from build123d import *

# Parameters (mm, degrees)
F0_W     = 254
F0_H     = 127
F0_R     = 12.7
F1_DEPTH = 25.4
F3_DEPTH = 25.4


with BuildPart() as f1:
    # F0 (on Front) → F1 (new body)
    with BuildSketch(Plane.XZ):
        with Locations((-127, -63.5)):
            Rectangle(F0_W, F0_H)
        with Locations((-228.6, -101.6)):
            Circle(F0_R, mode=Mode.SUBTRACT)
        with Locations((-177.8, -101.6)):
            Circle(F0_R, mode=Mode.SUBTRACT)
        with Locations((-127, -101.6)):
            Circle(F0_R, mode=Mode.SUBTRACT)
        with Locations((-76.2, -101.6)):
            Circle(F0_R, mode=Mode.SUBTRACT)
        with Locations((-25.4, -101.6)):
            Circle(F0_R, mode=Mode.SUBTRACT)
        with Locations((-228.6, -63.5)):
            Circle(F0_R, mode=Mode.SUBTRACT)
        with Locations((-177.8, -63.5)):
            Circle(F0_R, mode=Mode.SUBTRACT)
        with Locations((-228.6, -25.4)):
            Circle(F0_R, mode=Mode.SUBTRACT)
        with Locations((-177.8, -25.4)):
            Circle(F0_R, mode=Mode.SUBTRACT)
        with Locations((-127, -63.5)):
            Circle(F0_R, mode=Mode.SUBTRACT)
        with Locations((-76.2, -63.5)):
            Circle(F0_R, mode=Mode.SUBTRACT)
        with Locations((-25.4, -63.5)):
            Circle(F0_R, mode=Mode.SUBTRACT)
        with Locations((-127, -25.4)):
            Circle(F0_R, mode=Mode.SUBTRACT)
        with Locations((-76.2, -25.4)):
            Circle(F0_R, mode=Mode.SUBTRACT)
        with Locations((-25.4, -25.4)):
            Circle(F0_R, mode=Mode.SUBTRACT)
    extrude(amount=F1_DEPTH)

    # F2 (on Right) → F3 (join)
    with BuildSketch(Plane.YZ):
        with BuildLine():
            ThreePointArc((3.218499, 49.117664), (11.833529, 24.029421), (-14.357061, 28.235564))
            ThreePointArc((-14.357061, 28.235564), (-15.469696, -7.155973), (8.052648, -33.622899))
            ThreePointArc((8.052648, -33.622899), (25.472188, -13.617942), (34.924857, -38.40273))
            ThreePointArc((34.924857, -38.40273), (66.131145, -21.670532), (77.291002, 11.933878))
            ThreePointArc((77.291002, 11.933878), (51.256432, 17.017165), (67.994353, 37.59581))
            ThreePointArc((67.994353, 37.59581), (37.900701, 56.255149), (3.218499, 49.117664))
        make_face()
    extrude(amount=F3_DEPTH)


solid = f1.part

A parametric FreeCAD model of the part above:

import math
import FreeCAD as App
import Part
import Sketcher
from FreeCAD import Vector
Q = App.Units.Quantity

doc = App.newDocument("Part")
params = doc.addObject("Spreadsheet::Sheet", "Params")
for row, (alias, value) in enumerate([
    ("sketch1_diameter", "1 in"),
    ("sketch1_width", "10 in"),
    ("sketch1_height", "5 in"),
    ("pad1_length", "1 in"),
    ("pad2_length", "1 in"),
], start=1):
    params.set(f"A{row}", alias)
    params.set(f"B{row}", "=" + value)
    params.setAlias(f"B{row}", alias)

body = doc.addObject("PartDesign::Body", "Body")

sketch1 = body.newObject("Sketcher::SketchObject", "Sketch")
sketch1.AttachmentSupport = (doc.getObject("XZ_Plane"), [""])
sketch1.MapMode = "FlatFace"
sketch1.addGeometry([
    Part.LineSegment(Vector(-254, 0, 0), Vector(-254, -127, 0)),
    Part.LineSegment(Vector(-254, -127, 0), Vector(0, -127, 0)),
    Part.LineSegment(Vector(0, -127, 0), Vector(0, 0, 0)),
    Part.LineSegment(Vector(0, 0, 0), Vector(-254, 0, 0)),
    Part.Circle(Vector(-228.6, -101.6, 0), Vector(0, 0, 1), 12.7),
    Part.Circle(Vector(-177.8, -101.6, 0), Vector(0, 0, 1), 12.7),
    Part.Circle(Vector(-228.6, -63.5, 0), Vector(0, 0, 1), 12.7),
    Part.Circle(Vector(-177.8, -63.5, 0), Vector(0, 0, 1), 12.7),
    Part.Circle(Vector(-127, -101.6, 0), Vector(0, 0, 1), 12.7),
    Part.Circle(Vector(-76.2, -101.6, 0), Vector(0, 0, 1), 12.7),
    Part.Circle(Vector(-25.4, -101.6, 0), Vector(0, 0, 1), 12.7),
    Part.Circle(Vector(-127, -63.5, 0), Vector(0, 0, 1), 12.7),
    Part.Circle(Vector(-76.2, -63.5, 0), Vector(0, 0, 1), 12.7),
    Part.Circle(Vector(-25.4, -63.5, 0), Vector(0, 0, 1), 12.7),
    Part.Circle(Vector(-228.6, -25.4, 0), Vector(0, 0, 1), 12.7),
    Part.Circle(Vector(-177.8, -25.4, 0), Vector(0, 0, 1), 12.7),
    Part.Circle(Vector(-127, -25.4, 0), Vector(0, 0, 1), 12.7),
    Part.Circle(Vector(-76.2, -25.4, 0), Vector(0, 0, 1), 12.7),
    Part.Circle(Vector(-25.4, -25.4, 0), Vector(0, 0, 1), 12.7),
], False)
sketch1.addConstraint([
    Sketcher.Constraint("Coincident", 0, 2, 1, 1),
    Sketcher.Constraint("Coincident", 1, 2, 2, 1),
    Sketcher.Constraint("Coincident", 2, 2, 3, 1),
    Sketcher.Constraint("Coincident", 3, 2, 0, 1),
    Sketcher.Constraint("Vertical", 0),
    Sketcher.Constraint("Horizontal", 1),
    Sketcher.Constraint("Vertical", 2),
    Sketcher.Constraint("Horizontal", 3),
    Sketcher.Constraint("Coincident", 2, 2, -1, 1),
    Sketcher.Constraint("Equal", 4, 5),
    Sketcher.Constraint("Equal", 5, 6),
    Sketcher.Constraint("Equal", 6, 7),
    Sketcher.Constraint("Equal", 7, 8),
    Sketcher.Constraint("Equal", 8, 9),
    Sketcher.Constraint("Equal", 9, 10),
    Sketcher.Constraint("Equal", 10, 11),
    Sketcher.Constraint("Equal", 11, 12),
    Sketcher.Constraint("Equal", 12, 13),
    Sketcher.Constraint("Equal", 13, 14),
    Sketcher.Constraint("Equal", 14, 15),
    Sketcher.Constraint("Equal", 15, 16),
    Sketcher.Constraint("Equal", 16, 17),
    Sketcher.Constraint("Equal", 17, 18),
    Sketcher.Constraint("Horizontal", 4, 3, 5, 3),
    Sketcher.Constraint("Horizontal", 6, 3, 7, 3),
    Sketcher.Constraint("Horizontal", 5, 3, 8, 3),
    Sketcher.Constraint("Horizontal", 8, 3, 9, 3),
    Sketcher.Constraint("Horizontal", 9, 3, 10, 3),
    Sketcher.Constraint("Horizontal", 7, 3, 11, 3),
    Sketcher.Constraint("Horizontal", 11, 3, 12, 3),
    Sketcher.Constraint("Horizontal", 12, 3, 13, 3),
    Sketcher.Constraint("Horizontal", 14, 3, 15, 3),
    Sketcher.Constraint("Horizontal", 15, 3, 16, 3),
    Sketcher.Constraint("Horizontal", 16, 3, 17, 3),
    Sketcher.Constraint("Horizontal", 17, 3, 18, 3),
    Sketcher.Constraint("Vertical", 4, 3, 6, 3),
    Sketcher.Constraint("Vertical", 5, 3, 7, 3),
    Sketcher.Constraint("Vertical", 8, 3, 11, 3),
    Sketcher.Constraint("Vertical", 9, 3, 12, 3),
    Sketcher.Constraint("Vertical", 10, 3, 13, 3),
    Sketcher.Constraint("Vertical", 6, 3, 14, 3),
    Sketcher.Constraint("Vertical", 7, 3, 15, 3),
    Sketcher.Constraint("Vertical", 11, 3, 16, 3),
    Sketcher.Constraint("Vertical", 12, 3, 17, 3),
    Sketcher.Constraint("Vertical", 13, 3, 18, 3),
    Sketcher.Constraint("Diameter", 4, Q("1 in")),
    Sketcher.Constraint("DistanceX", 1, 1, 1, 2, Q("10 in")),
    Sketcher.Constraint("DistanceY", 0, 2, 0, 1, Q("5 in")),
    Sketcher.Constraint("DistanceX", 4, 3, -1, 1, Q("9 in")),
    Sketcher.Constraint("DistanceY", 4, 3, -1, 1, Q("4 in")),
    Sketcher.Constraint("DistanceX", 5, 3, -1, 1, Q("7 in")),
    Sketcher.Constraint("DistanceX", 8, 3, -1, 1, Q("5 in")),
    Sketcher.Constraint("DistanceX", 9, 3, -1, 1, Q("3 in")),
    Sketcher.Constraint("DistanceX", 10, 3, -1, 1, Q("1 in")),
    Sketcher.Constraint("DistanceY", 14, 3, -1, 1, Q("1 in")),
    Sketcher.Constraint("DistanceY", 6, 3, -1, 1, Q("2.5 in")),
])
sketch1.setExpression("Constraints[45]", "Params.sketch1_diameter")
sketch1.setExpression("Constraints[46]", "Params.sketch1_width")
sketch1.setExpression("Constraints[47]", "Params.sketch1_height")
pad1 = body.newObject("PartDesign::Pad", "Pad")
pad1.Profile = sketch1
pad1.setExpression("Length", "Params.pad1_length")

sketch2 = body.newObject("Sketcher::SketchObject", "Sketch001")
sketch2.AttachmentSupport = (doc.getObject("YZ_Plane"), [""])
sketch2.MapMode = "FlatFace"
sketch2.addGeometry([
    Part.ArcOfCircle(Part.Circle(Vector(0, 33.989191, 0), Vector(0, 0, 1), 15.467043), math.radians(-158.161435), math.radians(77.9897)),
    Part.ArcOfCircle(Part.Circle(Vector(29.520718, 9.142882, 0), Vector(0, 0, 1), 47.85175), math.radians(156.484538), math.radians(243.343725)),
    Part.ArcOfCircle(Part.Circle(Vector(22.763539, -28.845964, 0), Vector(0, 0, 1), 15.467043), math.radians(-38.161436), math.radians(197.989701)),
    Part.ArcOfCircle(Part.Circle(Vector(29.520718, 9.14288, 0), Vector(0, 0, 1), 47.851747), math.radians(-83.515464), math.radians(3.343728)),
    Part.ArcOfCircle(Part.Circle(Vector(65.79861, 22.285417, 0), Vector(0, 0, 1), 15.467043), math.radians(81.838566), math.radians(317.989696)),
    Part.ArcOfCircle(Part.Circle(Vector(29.520716, 9.142883, 0), Vector(0, 0, 1), 47.851748), math.radians(36.484536), math.radians(123.343727)),
], False)
sketch2.addConstraint([
    Sketcher.Constraint("Coincident", 0, 1, 1, 1),
    Sketcher.Constraint("Coincident", 1, 2, 2, 2),
    Sketcher.Constraint("Coincident", 2, 1, 3, 1),
    Sketcher.Constraint("Coincident", 3, 2, 4, 2),
    Sketcher.Constraint("Coincident", 4, 1, 5, 1),
    Sketcher.Constraint("Coincident", 5, 2, 0, 2),
    Sketcher.Constraint("Coincident", 3, 3, 1, 3),
    Sketcher.Constraint("Coincident", 5, 3, 1, 3),
    Sketcher.Constraint("Equal", 0, 2),
    Sketcher.Constraint("Equal", 2, 4),
    Sketcher.Constraint("Equal", 3, 5),
    Sketcher.Constraint("PointOnObject", 0, 3, -2),
    Sketcher.Constraint("Radius", 1, Q("47.85175 mm")),
    Sketcher.Constraint("Radius", 5, Q("47.851748 mm")),
    Sketcher.Constraint("Radius", 0, Q("15.467043 mm")),
    Sketcher.Constraint("DistanceY", 1, 2, -1, 1, Q("33.622899 mm")),
    Sketcher.Constraint("DistanceX", -1, 1, 3, 2, Q("77.291002 mm")),
    Sketcher.Constraint("DistanceX", -1, 1, 5, 2, Q("3.218499 mm")),
    Sketcher.Constraint("DistanceX", 0, 1, 2, 3, Q("37.1206 mm")),
    Sketcher.Constraint("DistanceY", 3, 3, 3, 2, Q("2.790998 mm")),
    Sketcher.Constraint("DistanceY", -1, 1, 0, 3, Q("33.989191 mm")),
    Sketcher.Constraint("DistanceX", -1, 1, 4, 3, Q("65.79861 mm")),
])
pad2 = body.newObject("PartDesign::Pad", "Pad001")
pad2.Profile = sketch2
pad2.setExpression("Length", "Params.pad2_length")

doc.recompute()
